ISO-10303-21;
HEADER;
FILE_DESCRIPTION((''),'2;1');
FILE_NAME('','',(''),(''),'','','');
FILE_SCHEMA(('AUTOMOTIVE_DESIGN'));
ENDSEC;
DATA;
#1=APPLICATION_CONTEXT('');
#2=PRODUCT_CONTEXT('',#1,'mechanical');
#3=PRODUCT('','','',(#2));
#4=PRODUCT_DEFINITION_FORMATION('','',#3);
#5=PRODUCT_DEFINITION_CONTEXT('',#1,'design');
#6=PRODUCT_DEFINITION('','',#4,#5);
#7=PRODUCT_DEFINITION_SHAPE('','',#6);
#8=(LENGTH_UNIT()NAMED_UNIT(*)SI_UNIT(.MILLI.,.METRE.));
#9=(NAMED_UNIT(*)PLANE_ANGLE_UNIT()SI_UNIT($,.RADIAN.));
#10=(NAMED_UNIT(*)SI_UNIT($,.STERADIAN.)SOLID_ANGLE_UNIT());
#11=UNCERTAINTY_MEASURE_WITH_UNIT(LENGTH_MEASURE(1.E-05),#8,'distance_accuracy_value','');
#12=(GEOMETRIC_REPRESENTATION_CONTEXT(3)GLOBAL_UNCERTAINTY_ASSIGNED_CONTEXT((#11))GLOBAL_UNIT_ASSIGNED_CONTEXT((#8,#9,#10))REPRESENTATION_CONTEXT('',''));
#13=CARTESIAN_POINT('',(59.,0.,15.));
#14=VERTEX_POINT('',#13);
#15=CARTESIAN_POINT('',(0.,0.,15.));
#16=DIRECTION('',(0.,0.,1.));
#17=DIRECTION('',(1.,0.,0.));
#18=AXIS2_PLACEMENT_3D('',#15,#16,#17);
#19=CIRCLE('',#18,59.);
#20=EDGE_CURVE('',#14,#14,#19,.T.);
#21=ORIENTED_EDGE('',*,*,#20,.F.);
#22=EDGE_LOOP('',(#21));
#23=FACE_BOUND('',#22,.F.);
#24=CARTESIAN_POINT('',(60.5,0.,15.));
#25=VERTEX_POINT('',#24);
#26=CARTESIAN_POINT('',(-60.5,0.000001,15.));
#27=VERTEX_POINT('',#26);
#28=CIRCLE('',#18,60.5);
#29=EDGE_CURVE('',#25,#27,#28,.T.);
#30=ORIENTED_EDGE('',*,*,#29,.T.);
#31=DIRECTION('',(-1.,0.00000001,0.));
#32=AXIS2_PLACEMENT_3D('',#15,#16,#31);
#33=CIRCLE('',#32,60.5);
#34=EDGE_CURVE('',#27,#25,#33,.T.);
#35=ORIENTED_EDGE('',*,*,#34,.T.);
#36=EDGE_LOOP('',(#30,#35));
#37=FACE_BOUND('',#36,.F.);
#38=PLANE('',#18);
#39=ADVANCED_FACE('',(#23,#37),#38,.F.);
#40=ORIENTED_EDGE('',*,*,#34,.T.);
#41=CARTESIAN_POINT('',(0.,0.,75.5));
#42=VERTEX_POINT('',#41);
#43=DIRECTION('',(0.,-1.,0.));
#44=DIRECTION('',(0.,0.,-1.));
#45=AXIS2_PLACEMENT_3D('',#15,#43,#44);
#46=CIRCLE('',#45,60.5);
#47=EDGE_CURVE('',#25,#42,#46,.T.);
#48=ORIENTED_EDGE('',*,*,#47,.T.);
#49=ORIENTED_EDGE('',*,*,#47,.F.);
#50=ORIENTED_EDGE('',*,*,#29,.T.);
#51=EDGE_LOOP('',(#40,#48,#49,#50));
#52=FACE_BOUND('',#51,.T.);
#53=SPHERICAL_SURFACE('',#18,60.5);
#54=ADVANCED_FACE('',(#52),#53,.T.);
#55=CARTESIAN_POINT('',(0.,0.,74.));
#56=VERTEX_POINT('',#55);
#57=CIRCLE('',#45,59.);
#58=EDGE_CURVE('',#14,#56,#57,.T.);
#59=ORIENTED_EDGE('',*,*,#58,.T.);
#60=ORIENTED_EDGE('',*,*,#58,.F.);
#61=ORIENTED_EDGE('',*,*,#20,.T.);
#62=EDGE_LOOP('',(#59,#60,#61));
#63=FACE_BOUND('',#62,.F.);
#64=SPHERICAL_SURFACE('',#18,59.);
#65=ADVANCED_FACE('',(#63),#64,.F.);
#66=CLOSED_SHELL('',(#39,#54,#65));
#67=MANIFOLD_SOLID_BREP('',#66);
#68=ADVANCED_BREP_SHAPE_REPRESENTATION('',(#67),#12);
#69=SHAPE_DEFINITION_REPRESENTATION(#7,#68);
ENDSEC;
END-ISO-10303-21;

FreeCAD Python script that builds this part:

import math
import FreeCAD as App
import Part
import Sketcher

V = App.Vector
Q = App.Units.Quantity


def add_polygon(sketch, points):
    """Adds a closed chain of lines whose ends are joined by coincident constraints."""
    first, n = sketch.GeometryCount, len(points)
    for a, b in zip(points, points[1:] + points[:1]):
        sketch.addGeometry(Part.LineSegment(App.Vector(*a, 0), App.Vector(*b, 0)), False)
    for i in range(n):
        sketch.addConstraint(Sketcher.Constraint("Coincident", first + i, 2, first + (i + 1) % n, 1))

doc = App.newDocument("Part")
body = doc.addObject("PartDesign::Body", "Body")

# Sketch on XY plane
sketch1 = body.newObject("Sketcher::SketchObject", "Sketch")
sketch1.AttachmentSupport = (doc.getObject("XY_Plane"), [""])
sketch1.MapMode = "FlatFace"
sketch1.AttachmentOffset = App.Placement(V(0, 0, -45.5), App.Rotation())
add_polygon(sketch1, [(-60, 60), (-60, -60), (60, -60), (60, 60)])  # lines 0-3
sketch1.addConstraint(Sketcher.Constraint("Vertical", 0))
sketch1.addConstraint(Sketcher.Constraint("Horizontal", 1))
sketch1.addConstraint(Sketcher.Constraint("Vertical", 2))
sketch1.addConstraint(Sketcher.Constraint("Horizontal", 3))
sketch1.addConstraint(Sketcher.Constraint("Symmetric", 0, 2, 2, 2, -1, 1))
sketch1.addConstraint(Sketcher.Constraint("Equal", 3, 0))
sketch1.addConstraint(Sketcher.Constraint("DistanceX", 1, 1, 1, 2, Q("121 mm")))
pad1 = body.newObject("PartDesign::Pad", "Pad")
pad1.Profile = sketch1
pad1.Length = 60.5
body2 = doc.addObject("PartDesign::Body", "Body001")

# Sketch on XZ plane
sketch2 = body2.newObject("Sketcher::SketchObject", "Sketch001")
sketch2.AttachmentSupport = (doc.getObject("XZ_Plane001"), [""])
sketch2.MapMode = "FlatFace"
sketch2.addGeometry(Part.ArcOfCircle(Part.Circle(V(0, 15, 0), V(0, 0, 1), 59), math.radians(-90), math.radians(90)), False)
sketch2.addGeometry(Part.LineSegment(V(0, 74, 0), V(0, -44, 0)), False)
sketch2.addConstraint(Sketcher.Constraint("Coincident", 0, 1, 1, 2))
sketch2.addConstraint(Sketcher.Constraint("Coincident", 1, 1, 0, 2))
sketch2.addConstraint(Sketcher.Constraint("Vertical", 1))
sketch2.addConstraint(Sketcher.Constraint("PointOnObject", 0, 3, -2))
sketch2.addConstraint(Sketcher.Constraint("PointOnObject", 0, 1, -2))
sketch2.addConstraint(Sketcher.Constraint("Radius", 0, Q("59 mm")))
sketch2.addConstraint(Sketcher.Constraint("DistanceY", -1, 1, 0, 3, Q("15 mm")))
revolution = body2.newObject("PartDesign::Revolution", "Revolution")
revolution.Profile = sketch2
revolution.ReferenceAxis = (sketch2, ["V_Axis"])
revolution.Angle = 360
body3 = doc.addObject("PartDesign::Body", "Body002")

# Sketch on XZ plane
sketch3 = body3.newObject("Sketcher::SketchObject", "Sketch002")
sketch3.AttachmentSupport = (doc.getObject("XZ_Plane002"), [""])
sketch3.MapMode = "FlatFace"
sketch3.addGeometry(Part.ArcOfCircle(Part.Circle(V(0, 15, 0), V(0, 0, 1), 60), math.radians(-90), math.radians(90)), False)
sketch3.addGeometry(Part.LineSegment(V(0, 76, 0), V(0, -46, 0)), False)
sketch3.addConstraint(Sketcher.Constraint("Coincident", 0, 1, 1, 2))
sketch3.addConstraint(Sketcher.Constraint("Coincident", 1, 1, 0, 2))
sketch3.addConstraint(Sketcher.Constraint("Vertical", 1))
sketch3.addConstraint(Sketcher.Constraint("PointOnObject", 0, 3, -2))
sketch3.addConstraint(Sketcher.Constraint("PointOnObject", 0, 1, -2))
sketch3.addConstraint(Sketcher.Constraint("Radius", 0, Q("60.5 mm")))
sketch3.addConstraint(Sketcher.Constraint("DistanceY", -1, 1, 0, 3, Q("15 mm")))
revolution2 = body3.newObject("PartDesign::Revolution", "Revolution001")
revolution2.Profile = sketch3
revolution2.ReferenceAxis = (sketch3, ["V_Axis"])
revolution2.Angle = 360
doc.recompute()

boolean = body3.newObject("PartDesign::Boolean", "Boolean")
boolean.Type = "Cut"
boolean.addObjects([body2])
doc.recompute()

boolean2 = body3.newObject("PartDesign::Boolean", "Boolean001")
boolean2.Type = "Cut"
boolean2.addObjects([body])

doc.recompute()
